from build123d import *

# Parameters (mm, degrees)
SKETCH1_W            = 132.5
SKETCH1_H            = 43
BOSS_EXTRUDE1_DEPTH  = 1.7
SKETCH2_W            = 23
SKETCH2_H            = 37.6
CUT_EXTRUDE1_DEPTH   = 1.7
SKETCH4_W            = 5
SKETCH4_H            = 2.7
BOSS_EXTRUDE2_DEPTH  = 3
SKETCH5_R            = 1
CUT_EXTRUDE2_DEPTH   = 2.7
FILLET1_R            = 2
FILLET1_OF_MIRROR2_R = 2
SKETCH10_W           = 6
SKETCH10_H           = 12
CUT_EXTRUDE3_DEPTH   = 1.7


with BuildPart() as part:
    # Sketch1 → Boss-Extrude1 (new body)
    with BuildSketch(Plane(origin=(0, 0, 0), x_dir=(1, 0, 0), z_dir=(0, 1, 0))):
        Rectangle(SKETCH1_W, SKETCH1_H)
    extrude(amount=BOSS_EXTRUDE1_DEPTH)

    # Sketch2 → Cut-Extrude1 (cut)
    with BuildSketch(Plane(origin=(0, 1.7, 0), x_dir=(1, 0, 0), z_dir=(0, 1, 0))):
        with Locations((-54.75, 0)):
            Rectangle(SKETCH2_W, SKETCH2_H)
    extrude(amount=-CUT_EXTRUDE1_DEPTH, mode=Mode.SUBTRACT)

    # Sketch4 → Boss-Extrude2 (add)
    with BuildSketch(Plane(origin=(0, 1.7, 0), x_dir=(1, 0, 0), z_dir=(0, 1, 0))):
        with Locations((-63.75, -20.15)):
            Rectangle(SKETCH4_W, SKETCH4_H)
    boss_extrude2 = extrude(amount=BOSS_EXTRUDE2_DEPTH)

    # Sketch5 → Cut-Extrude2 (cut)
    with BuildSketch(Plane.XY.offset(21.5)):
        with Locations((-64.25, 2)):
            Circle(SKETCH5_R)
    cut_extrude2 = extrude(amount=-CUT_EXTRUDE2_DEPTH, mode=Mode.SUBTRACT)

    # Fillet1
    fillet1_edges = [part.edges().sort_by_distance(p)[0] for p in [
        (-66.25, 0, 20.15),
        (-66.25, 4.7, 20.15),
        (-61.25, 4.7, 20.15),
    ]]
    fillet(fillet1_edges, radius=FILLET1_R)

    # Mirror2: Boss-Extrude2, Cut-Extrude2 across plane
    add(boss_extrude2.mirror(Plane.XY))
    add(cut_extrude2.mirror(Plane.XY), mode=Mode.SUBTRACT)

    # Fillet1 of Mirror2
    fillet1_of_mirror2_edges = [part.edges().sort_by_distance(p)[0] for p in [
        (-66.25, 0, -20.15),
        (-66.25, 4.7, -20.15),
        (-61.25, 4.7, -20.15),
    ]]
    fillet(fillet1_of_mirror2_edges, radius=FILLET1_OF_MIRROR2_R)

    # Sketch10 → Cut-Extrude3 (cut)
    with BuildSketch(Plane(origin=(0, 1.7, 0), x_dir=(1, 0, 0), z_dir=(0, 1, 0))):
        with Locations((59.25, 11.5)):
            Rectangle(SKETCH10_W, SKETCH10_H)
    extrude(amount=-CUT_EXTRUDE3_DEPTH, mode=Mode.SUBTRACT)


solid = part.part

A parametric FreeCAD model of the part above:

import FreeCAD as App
import Part
import Sketcher

V = App.Vector
Q = App.Units.Quantity


def edges_at(feature, points):
    """Names of the edges that pass closest to the given points."""
    edges = feature.Shape.Edges
    near = lambda p: min(range(len(edges)), key=lambda i: edges[i].distToShape(Part.Vertex(*p))[0])
    return sorted({f"Edge{near(p) + 1}" for p in points})

doc = App.newDocument("Part")
params = doc.addObject("Spreadsheet::Sheet", "Params")
for row, (alias, value) in enumerate([
    ("sketch1_height", "43 mm"),
    ("sketch1_width", "132.5 mm"),
    ("pad1_length", "1.7 mm"),
    ("sketch2_width", "23 mm"),
    ("sketch2_height", "37.6 mm"),
    ("pocket1_length", "1.7 mm"),
    ("sketch3_width", "5 mm"),
    ("sketch3_height", "2.7 mm"),
    ("pad2_length", "3 mm"),
    ("sketch4_diameter", "2 mm"),
    ("pocket2_length", "2.7 mm"),
    ("fillet_radius", "2 mm"),
    ("fillet2_radius", "2 mm"),
    ("sketch5_width", "6 mm"),
    ("sketch5_height", "12 mm"),
    ("pocket3_length", "1.7 mm"),
], start=1):
    params.set(f"A{row}", alias)
    params.set(f"B{row}", "=" + value)
    params.setAlias(f"B{row}", alias)

body = doc.addObject("PartDesign::Body", "Body")

# Sketch on XZ plane
sketch1 = doc.addObject("Sketcher::SketchObject", "Sketch")
body.addObject(sketch1)
sketch1.AttachmentSupport = (doc.XZ_Plane, [""])
sketch1.MapMode = "FlatFace"
sketch1.addGeometry([
    Part.LineSegment(V(-66, -22, 0), V(-66, 22, 0)),
    Part.LineSegment(V(-66, 22, 0), V(66, 22, 0)),
    Part.LineSegment(V(66, 22, 0), V(66, -22, 0)),
    Part.LineSegment(V(66, -22, 0), V(-66, -22, 0)),
], False)
sketch1.addConstraint([
    Sketcher.Constraint("Coincident", 0, 2, 1, 1),
    Sketcher.Constraint("Coincident", 1, 2, 2, 1),
    Sketcher.Constraint("Coincident", 2, 2, 3, 1),
    Sketcher.Constraint("Coincident", 3, 2, 0, 1),
    Sketcher.Constraint("Vertical", 0),
    Sketcher.Constraint("Horizontal", 1),
    Sketcher.Constraint("Vertical", 2),
    Sketcher.Constraint("Horizontal", 3),
    Sketcher.Constraint("Symmetric", 0, 2, 2, 2, -1, 1),
    Sketcher.Constraint("DistanceY", 0, 1, 0, 2, Q("43 mm")),
    Sketcher.Constraint("DistanceX", 1, 1, 1, 2, Q("132.5 mm")),
])
sketch1.setExpression("Constraints[9]", "Params.sketch1_height")
sketch1.setExpression("Constraints[10]", "Params.sketch1_width")
pad1 = doc.addObject("PartDesign::Pad", "Pad")
body.addObject(pad1)
pad1.Profile = sketch1
pad1.setExpression("Length", "Params.pad1_length")
pad1.Reversed = True

# Sketch on XZ plane
sketch2 = doc.addObject("Sketcher::SketchObject", "Sketch001")
body.addObject(sketch2)
sketch2.AttachmentSupport = (doc.XZ_Plane, [""])
sketch2.MapMode = "FlatFace"
sketch2.AttachmentOffset = App.Placement(V(0, 0, -1.7), App.Rotation())
sketch2.addGeometry([
    Part.LineSegment(V(-66, -19, 0), V(-66, 19, 0)),
    Part.LineSegment(V(-66, 19, 0), V(-43, 19, 0)),
    Part.LineSegment(V(-43, 19, 0), V(-43, -19, 0)),
    Part.LineSegment(V(-43, -19, 0), V(-66, -19, 0)),
], False)
sketch2.addConstraint([
    Sketcher.Constraint("Coincident", 0, 2, 1, 1),
    Sketcher.Constraint("Coincident", 1, 2, 2, 1),
    Sketcher.Constraint("Coincident", 2, 2, 3, 1),
    Sketcher.Constraint("Coincident", 3, 2, 0, 1),
    Sketcher.Constraint("Vertical", 0),
    Sketcher.Constraint("Horizontal", 1),
    Sketcher.Constraint("Vertical", 2),
    Sketcher.Constraint("Horizontal", 3),
    Sketcher.Constraint("DistanceX", 1, 1, 1, 2, Q("23 mm")),
    Sketcher.Constraint("DistanceY", 0, 1, 0, 2, Q("37.6 mm")),
    Sketcher.Constraint("DistanceY", -1, 1, 0, 2, Q("18.8 mm")),
    Sketcher.Constraint("DistanceX", 0, 2, -1, 1, Q("66.25 mm")),
])
sketch2.setExpression("Constraints[8]", "Params.sketch2_width")
sketch2.setExpression("Constraints[9]", "Params.sketch2_height")
pocket1 = doc.addObject("PartDesign::Pocket", "Pocket")
body.addObject(pocket1)
pocket1.Profile = sketch2
pocket1.setExpression("Length", "Params.pocket1_length")
pocket1.Reversed = True

# Sketch on XZ plane
sketch3 = doc.addObject("Sketcher::SketchObject", "Sketch002")
body.addObject(sketch3)
sketch3.AttachmentSupport = (doc.XZ_Plane, [""])
sketch3.MapMode = "FlatFace"
sketch3.AttachmentOffset = App.Placement(V(0, 0, -1.7), App.Rotation())
sketch3.addGeometry([
    Part.LineSegment(V(-66.2, 18.8, 0), V(-66.2, 21.5, 0)),
    Part.LineSegment(V(-66.2, 21.5, 0), V(-61.2, 21.5, 0)),
    Part.LineSegment(V(-61.2, 21.5, 0), V(-61.2, 18.8, 0)),
    Part.LineSegment(V(-61.2, 18.8, 0), V(-66.2, 18.8, 0)),
], False)
sketch3.addConstraint([
    Sketcher.Constraint("Coincident", 0, 2, 1, 1),
    Sketcher.Constraint("Coincident", 1, 2, 2, 1),
    Sketcher.Constraint("Coincident", 2, 2, 3, 1),
    Sketcher.Constraint("Coincident", 3, 2, 0, 1),
    Sketcher.Constraint("Vertical", 0),
    Sketcher.Constraint("Horizontal", 1),
    Sketcher.Constraint("Vertical", 2),
    Sketcher.Constraint("Horizontal", 3),
    Sketcher.Constraint("DistanceX", 1, 1, 1, 2, Q("5 mm")),
    Sketcher.Constraint("DistanceY", 0, 1, 0, 2, Q("2.7 mm")),
    Sketcher.Constraint("DistanceY", -1, 1, 0, 2, Q("21.5 mm")),
    Sketcher.Constraint("DistanceX", 0, 2, -1, 1, Q("66.25 mm")),
])
sketch3.setExpression("Constraints[8]", "Params.sketch3_width")
sketch3.setExpression("Constraints[9]", "Params.sketch3_height")
pad2 = doc.addObject("PartDesign::Pad", "Pad001")
body.addObject(pad2)
pad2.Profile = sketch3
pad2.setExpression("Length", "Params.pad2_length")
pad2.Reversed = True

# Sketch on XY plane
sketch4 = doc.addObject("Sketcher::SketchObject", "Sketch003")
body.addObject(sketch4)
sketch4.AttachmentSupport = (doc.XY_Plane, [""])
sketch4.MapMode = "FlatFace"
sketch4.AttachmentOffset = App.Placement(V(0, 0, 21.5), App.Rotation())
sketch4.addGeometry(Part.Circle(V(-64.2, 2, 0), V(0, 0, 1), 1), False)
sketch4.addConstraint([
    Sketcher.Constraint("Diameter", 0, Q("2 mm")),
    Sketcher.Constraint("DistanceY", -1, 1, 0, 3, Q("2 mm")),
    Sketcher.Constraint("DistanceX", 0, 3, -1, 1, Q("64.25 mm")),
])
sketch4.setExpression("Constraints[0]", "Params.sketch4_diameter")
pocket2 = doc.addObject("PartDesign::Pocket", "Pocket001")
body.addObject(pocket2)
pocket2.Profile = sketch4
pocket2.setExpression("Length", "Params.pocket2_length")
doc.recompute()

fillet = doc.addObject("PartDesign::Fillet", "Fillet")
body.addObject(fillet)
fillet.Base = (pocket2, edges_at(pocket2, [(-66.25, 0, 20.15), (-66.25, 4.7, 20.15), (-61.25, 4.7, 20.15)]))
fillet.setExpression("Radius", "Params.fillet_radius")
doc.recompute()

mirrored = doc.addObject("PartDesign::Mirrored", "Mirrored")
body.addObject(mirrored)
mirrored.Originals = [pad2, pocket2]
mirrored.MirrorPlane = (doc.XY_Plane, [""])
body.Tip = mirrored
doc.recompute()

fillet2 = doc.addObject("PartDesign::Fillet", "Fillet001")
body.addObject(fillet2)
fillet2.Base = (mirrored, edges_at(mirrored, [(-66.25, 0, -20.15), (-66.25, 4.7, -20.15), (-61.25, 4.7, -20.15)]))
fillet2.setExpression("Radius", "Params.fillet2_radius")

# Sketch on XZ plane
sketch5 = doc.addObject("Sketcher::SketchObject", "Sketch004")
body.addObject(sketch5)
sketch5.AttachmentSupport = (doc.XZ_Plane, [""])
sketch5.MapMode = "FlatFace"
sketch5.AttachmentOffset = App.Placement(V(0, 0, -1.7), App.Rotation())
sketch5.addGeometry([
    Part.LineSegment(V(56, -18, 0), V(56, -6, 0)),
    Part.LineSegment(V(56, -6, 0), V(62, -6, 0)),
    Part.LineSegment(V(62, -6, 0), V(62, -18, 0)),
    Part.LineSegment(V(62, -18, 0), V(56, -18, 0)),
], False)
sketch5.addConstraint([
    Sketcher.Constraint("Coincident", 0, 2, 1, 1),
    Sketcher.Constraint("Coincident", 1, 2, 2, 1),
    Sketcher.Constraint("Coincident", 2, 2, 3, 1),
    Sketcher.Constraint("Coincident", 3, 2, 0, 1),
    Sketcher.Constraint("Vertical", 0),
    Sketcher.Constraint("Horizontal", 1),
    Sketcher.Constraint("Vertical", 2),
    Sketcher.Constraint("Horizontal", 3),
    Sketcher.Constraint("DistanceX", 1, 1, 1, 2, Q("6 mm")),
    Sketcher.Constraint("DistanceY", 0, 1, 0, 2, Q("12 mm")),
    Sketcher.Constraint("DistanceY", 0, 2, -1, 1, Q("5.5 mm")),
    Sketcher.Constraint("DistanceX", -1, 1, 0, 2, Q("56.25 mm")),
])
sketch5.setExpression("Constraints[8]", "Params.sketch5_width")
sketch5.setExpression("Constraints[9]", "Params.sketch5_height")
pocket3 = doc.addObject("PartDesign::Pocket", "Pocket002")
body.addObject(pocket3)
pocket3.Profile = sketch5
pocket3.setExpression("Length", "Params.pocket3_length")
pocket3.Reversed = True

doc.recompute()
